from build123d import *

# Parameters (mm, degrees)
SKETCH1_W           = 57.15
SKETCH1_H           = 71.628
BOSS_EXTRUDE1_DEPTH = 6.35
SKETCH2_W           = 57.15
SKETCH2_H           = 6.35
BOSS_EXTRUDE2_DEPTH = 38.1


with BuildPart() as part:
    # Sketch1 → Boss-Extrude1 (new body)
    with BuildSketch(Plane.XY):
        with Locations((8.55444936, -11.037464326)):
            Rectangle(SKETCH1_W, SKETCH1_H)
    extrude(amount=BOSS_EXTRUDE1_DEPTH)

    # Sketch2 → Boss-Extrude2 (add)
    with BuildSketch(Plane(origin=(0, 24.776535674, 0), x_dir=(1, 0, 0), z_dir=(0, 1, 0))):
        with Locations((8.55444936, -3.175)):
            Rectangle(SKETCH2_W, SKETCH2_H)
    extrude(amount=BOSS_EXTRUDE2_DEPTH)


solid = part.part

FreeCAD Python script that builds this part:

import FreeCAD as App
import Part
import Sketcher
from FreeCAD import Vector
Q = App.Units.Quantity

doc = App.newDocument("Part")
body = doc.addObject("PartDesign::Body", "Body")

sketch1 = body.newObject("Sketcher::SketchObject", "Sketch")
sketch1.AttachmentSupport = (doc.getObject("XY_Plane"), [""])
sketch1.MapMode = "FlatFace"
sketch1.addGeometry([
    Part.LineSegment(Vector(-20, 25, 0), Vector(-20, -47, 0)),
    Part.LineSegment(Vector(-20, -47, 0), Vector(37, -47, 0)),
    Part.LineSegment(Vector(37, -47, 0), Vector(37, 25, 0)),
    Part.LineSegment(Vector(37, 25, 0), Vector(-20, 25, 0)),
], False)
sketch1.addConstraint([
    Sketcher.Constraint("Coincident", 0, 2, 1, 1),
    Sketcher.Constraint("Coincident", 1, 2, 2, 1),
    Sketcher.Constraint("Coincident", 2, 2, 3, 1),
    Sketcher.Constraint("Coincident", 3, 2, 0, 1),
    Sketcher.Constraint("Vertical", 0),
    Sketcher.Constraint("Horizontal", 1),
    Sketcher.Constraint("Vertical", 2),
    Sketcher.Constraint("Horizontal", 3),
    Sketcher.Constraint("DistanceX", 1, 1, 1, 2, Q("2.25 in")),
    Sketcher.Constraint("DistanceY", 0, 2, 0, 1, Q("2.82 in")),
    Sketcher.Constraint("DistanceX", 0, 2, -1, 1, Q("20.020551 mm")),
    Sketcher.Constraint("DistanceY", 0, 2, -1, 1, Q("46.851464 mm")),
])
pad1 = body.newObject("PartDesign::Pad", "Pad")
pad1.Profile = sketch1
pad1.Length = Q("0.25 in")

sketch2 = body.newObject("Sketcher::SketchObject", "Sketch001")
sketch2.AttachmentSupport = (doc.getObject("XZ_Plane"), [""])
sketch2.MapMode = "FlatFace"
sketch2.AttachmentOffset = App.Placement(Vector(0, 0, -24.776536), App.Rotation())
sketch2.addGeometry([
    Part.LineSegment(Vector(-20, 0, 0), Vector(-20, 6, 0)),
    Part.LineSegment(Vector(-20, 6, 0), Vector(37, 6, 0)),
    Part.LineSegment(Vector(37, 6, 0), Vector(37, 0, 0)),
    Part.LineSegment(Vector(37, 0, 0), Vector(-20, 0, 0)),
], False)
sketch2.addConstraint([
    Sketcher.Constraint("Coincident", 0, 2, 1, 1),
    Sketcher.Constraint("Coincident", 1, 2, 2, 1),
    Sketcher.Constraint("Coincident", 2, 2, 3, 1),
    Sketcher.Constraint("Coincident", 3, 2, 0, 1),
    Sketcher.Constraint("Vertical", 0),
    Sketcher.Constraint("Horizontal", 1),
    Sketcher.Constraint("Vertical", 2),
    Sketcher.Constraint("Horizontal", 3),
    Sketcher.Constraint("PointOnObject", 2, 2, -1),
    Sketcher.Constraint("DistanceX", 1, 1, 1, 2, Q("2.25 in")),
    Sketcher.Constraint("DistanceY", 0, 1, 0, 2, Q("0.25 in")),
    Sketcher.Constraint("DistanceX", 0, 2, -1, 1, Q("20.020551 mm")),
])
pad2 = body.newObject("PartDesign::Pad", "Pad001")
pad2.Profile = sketch2
pad2.Length = Q("1.5 in")
pad2.Reversed = True

doc.recompute()
